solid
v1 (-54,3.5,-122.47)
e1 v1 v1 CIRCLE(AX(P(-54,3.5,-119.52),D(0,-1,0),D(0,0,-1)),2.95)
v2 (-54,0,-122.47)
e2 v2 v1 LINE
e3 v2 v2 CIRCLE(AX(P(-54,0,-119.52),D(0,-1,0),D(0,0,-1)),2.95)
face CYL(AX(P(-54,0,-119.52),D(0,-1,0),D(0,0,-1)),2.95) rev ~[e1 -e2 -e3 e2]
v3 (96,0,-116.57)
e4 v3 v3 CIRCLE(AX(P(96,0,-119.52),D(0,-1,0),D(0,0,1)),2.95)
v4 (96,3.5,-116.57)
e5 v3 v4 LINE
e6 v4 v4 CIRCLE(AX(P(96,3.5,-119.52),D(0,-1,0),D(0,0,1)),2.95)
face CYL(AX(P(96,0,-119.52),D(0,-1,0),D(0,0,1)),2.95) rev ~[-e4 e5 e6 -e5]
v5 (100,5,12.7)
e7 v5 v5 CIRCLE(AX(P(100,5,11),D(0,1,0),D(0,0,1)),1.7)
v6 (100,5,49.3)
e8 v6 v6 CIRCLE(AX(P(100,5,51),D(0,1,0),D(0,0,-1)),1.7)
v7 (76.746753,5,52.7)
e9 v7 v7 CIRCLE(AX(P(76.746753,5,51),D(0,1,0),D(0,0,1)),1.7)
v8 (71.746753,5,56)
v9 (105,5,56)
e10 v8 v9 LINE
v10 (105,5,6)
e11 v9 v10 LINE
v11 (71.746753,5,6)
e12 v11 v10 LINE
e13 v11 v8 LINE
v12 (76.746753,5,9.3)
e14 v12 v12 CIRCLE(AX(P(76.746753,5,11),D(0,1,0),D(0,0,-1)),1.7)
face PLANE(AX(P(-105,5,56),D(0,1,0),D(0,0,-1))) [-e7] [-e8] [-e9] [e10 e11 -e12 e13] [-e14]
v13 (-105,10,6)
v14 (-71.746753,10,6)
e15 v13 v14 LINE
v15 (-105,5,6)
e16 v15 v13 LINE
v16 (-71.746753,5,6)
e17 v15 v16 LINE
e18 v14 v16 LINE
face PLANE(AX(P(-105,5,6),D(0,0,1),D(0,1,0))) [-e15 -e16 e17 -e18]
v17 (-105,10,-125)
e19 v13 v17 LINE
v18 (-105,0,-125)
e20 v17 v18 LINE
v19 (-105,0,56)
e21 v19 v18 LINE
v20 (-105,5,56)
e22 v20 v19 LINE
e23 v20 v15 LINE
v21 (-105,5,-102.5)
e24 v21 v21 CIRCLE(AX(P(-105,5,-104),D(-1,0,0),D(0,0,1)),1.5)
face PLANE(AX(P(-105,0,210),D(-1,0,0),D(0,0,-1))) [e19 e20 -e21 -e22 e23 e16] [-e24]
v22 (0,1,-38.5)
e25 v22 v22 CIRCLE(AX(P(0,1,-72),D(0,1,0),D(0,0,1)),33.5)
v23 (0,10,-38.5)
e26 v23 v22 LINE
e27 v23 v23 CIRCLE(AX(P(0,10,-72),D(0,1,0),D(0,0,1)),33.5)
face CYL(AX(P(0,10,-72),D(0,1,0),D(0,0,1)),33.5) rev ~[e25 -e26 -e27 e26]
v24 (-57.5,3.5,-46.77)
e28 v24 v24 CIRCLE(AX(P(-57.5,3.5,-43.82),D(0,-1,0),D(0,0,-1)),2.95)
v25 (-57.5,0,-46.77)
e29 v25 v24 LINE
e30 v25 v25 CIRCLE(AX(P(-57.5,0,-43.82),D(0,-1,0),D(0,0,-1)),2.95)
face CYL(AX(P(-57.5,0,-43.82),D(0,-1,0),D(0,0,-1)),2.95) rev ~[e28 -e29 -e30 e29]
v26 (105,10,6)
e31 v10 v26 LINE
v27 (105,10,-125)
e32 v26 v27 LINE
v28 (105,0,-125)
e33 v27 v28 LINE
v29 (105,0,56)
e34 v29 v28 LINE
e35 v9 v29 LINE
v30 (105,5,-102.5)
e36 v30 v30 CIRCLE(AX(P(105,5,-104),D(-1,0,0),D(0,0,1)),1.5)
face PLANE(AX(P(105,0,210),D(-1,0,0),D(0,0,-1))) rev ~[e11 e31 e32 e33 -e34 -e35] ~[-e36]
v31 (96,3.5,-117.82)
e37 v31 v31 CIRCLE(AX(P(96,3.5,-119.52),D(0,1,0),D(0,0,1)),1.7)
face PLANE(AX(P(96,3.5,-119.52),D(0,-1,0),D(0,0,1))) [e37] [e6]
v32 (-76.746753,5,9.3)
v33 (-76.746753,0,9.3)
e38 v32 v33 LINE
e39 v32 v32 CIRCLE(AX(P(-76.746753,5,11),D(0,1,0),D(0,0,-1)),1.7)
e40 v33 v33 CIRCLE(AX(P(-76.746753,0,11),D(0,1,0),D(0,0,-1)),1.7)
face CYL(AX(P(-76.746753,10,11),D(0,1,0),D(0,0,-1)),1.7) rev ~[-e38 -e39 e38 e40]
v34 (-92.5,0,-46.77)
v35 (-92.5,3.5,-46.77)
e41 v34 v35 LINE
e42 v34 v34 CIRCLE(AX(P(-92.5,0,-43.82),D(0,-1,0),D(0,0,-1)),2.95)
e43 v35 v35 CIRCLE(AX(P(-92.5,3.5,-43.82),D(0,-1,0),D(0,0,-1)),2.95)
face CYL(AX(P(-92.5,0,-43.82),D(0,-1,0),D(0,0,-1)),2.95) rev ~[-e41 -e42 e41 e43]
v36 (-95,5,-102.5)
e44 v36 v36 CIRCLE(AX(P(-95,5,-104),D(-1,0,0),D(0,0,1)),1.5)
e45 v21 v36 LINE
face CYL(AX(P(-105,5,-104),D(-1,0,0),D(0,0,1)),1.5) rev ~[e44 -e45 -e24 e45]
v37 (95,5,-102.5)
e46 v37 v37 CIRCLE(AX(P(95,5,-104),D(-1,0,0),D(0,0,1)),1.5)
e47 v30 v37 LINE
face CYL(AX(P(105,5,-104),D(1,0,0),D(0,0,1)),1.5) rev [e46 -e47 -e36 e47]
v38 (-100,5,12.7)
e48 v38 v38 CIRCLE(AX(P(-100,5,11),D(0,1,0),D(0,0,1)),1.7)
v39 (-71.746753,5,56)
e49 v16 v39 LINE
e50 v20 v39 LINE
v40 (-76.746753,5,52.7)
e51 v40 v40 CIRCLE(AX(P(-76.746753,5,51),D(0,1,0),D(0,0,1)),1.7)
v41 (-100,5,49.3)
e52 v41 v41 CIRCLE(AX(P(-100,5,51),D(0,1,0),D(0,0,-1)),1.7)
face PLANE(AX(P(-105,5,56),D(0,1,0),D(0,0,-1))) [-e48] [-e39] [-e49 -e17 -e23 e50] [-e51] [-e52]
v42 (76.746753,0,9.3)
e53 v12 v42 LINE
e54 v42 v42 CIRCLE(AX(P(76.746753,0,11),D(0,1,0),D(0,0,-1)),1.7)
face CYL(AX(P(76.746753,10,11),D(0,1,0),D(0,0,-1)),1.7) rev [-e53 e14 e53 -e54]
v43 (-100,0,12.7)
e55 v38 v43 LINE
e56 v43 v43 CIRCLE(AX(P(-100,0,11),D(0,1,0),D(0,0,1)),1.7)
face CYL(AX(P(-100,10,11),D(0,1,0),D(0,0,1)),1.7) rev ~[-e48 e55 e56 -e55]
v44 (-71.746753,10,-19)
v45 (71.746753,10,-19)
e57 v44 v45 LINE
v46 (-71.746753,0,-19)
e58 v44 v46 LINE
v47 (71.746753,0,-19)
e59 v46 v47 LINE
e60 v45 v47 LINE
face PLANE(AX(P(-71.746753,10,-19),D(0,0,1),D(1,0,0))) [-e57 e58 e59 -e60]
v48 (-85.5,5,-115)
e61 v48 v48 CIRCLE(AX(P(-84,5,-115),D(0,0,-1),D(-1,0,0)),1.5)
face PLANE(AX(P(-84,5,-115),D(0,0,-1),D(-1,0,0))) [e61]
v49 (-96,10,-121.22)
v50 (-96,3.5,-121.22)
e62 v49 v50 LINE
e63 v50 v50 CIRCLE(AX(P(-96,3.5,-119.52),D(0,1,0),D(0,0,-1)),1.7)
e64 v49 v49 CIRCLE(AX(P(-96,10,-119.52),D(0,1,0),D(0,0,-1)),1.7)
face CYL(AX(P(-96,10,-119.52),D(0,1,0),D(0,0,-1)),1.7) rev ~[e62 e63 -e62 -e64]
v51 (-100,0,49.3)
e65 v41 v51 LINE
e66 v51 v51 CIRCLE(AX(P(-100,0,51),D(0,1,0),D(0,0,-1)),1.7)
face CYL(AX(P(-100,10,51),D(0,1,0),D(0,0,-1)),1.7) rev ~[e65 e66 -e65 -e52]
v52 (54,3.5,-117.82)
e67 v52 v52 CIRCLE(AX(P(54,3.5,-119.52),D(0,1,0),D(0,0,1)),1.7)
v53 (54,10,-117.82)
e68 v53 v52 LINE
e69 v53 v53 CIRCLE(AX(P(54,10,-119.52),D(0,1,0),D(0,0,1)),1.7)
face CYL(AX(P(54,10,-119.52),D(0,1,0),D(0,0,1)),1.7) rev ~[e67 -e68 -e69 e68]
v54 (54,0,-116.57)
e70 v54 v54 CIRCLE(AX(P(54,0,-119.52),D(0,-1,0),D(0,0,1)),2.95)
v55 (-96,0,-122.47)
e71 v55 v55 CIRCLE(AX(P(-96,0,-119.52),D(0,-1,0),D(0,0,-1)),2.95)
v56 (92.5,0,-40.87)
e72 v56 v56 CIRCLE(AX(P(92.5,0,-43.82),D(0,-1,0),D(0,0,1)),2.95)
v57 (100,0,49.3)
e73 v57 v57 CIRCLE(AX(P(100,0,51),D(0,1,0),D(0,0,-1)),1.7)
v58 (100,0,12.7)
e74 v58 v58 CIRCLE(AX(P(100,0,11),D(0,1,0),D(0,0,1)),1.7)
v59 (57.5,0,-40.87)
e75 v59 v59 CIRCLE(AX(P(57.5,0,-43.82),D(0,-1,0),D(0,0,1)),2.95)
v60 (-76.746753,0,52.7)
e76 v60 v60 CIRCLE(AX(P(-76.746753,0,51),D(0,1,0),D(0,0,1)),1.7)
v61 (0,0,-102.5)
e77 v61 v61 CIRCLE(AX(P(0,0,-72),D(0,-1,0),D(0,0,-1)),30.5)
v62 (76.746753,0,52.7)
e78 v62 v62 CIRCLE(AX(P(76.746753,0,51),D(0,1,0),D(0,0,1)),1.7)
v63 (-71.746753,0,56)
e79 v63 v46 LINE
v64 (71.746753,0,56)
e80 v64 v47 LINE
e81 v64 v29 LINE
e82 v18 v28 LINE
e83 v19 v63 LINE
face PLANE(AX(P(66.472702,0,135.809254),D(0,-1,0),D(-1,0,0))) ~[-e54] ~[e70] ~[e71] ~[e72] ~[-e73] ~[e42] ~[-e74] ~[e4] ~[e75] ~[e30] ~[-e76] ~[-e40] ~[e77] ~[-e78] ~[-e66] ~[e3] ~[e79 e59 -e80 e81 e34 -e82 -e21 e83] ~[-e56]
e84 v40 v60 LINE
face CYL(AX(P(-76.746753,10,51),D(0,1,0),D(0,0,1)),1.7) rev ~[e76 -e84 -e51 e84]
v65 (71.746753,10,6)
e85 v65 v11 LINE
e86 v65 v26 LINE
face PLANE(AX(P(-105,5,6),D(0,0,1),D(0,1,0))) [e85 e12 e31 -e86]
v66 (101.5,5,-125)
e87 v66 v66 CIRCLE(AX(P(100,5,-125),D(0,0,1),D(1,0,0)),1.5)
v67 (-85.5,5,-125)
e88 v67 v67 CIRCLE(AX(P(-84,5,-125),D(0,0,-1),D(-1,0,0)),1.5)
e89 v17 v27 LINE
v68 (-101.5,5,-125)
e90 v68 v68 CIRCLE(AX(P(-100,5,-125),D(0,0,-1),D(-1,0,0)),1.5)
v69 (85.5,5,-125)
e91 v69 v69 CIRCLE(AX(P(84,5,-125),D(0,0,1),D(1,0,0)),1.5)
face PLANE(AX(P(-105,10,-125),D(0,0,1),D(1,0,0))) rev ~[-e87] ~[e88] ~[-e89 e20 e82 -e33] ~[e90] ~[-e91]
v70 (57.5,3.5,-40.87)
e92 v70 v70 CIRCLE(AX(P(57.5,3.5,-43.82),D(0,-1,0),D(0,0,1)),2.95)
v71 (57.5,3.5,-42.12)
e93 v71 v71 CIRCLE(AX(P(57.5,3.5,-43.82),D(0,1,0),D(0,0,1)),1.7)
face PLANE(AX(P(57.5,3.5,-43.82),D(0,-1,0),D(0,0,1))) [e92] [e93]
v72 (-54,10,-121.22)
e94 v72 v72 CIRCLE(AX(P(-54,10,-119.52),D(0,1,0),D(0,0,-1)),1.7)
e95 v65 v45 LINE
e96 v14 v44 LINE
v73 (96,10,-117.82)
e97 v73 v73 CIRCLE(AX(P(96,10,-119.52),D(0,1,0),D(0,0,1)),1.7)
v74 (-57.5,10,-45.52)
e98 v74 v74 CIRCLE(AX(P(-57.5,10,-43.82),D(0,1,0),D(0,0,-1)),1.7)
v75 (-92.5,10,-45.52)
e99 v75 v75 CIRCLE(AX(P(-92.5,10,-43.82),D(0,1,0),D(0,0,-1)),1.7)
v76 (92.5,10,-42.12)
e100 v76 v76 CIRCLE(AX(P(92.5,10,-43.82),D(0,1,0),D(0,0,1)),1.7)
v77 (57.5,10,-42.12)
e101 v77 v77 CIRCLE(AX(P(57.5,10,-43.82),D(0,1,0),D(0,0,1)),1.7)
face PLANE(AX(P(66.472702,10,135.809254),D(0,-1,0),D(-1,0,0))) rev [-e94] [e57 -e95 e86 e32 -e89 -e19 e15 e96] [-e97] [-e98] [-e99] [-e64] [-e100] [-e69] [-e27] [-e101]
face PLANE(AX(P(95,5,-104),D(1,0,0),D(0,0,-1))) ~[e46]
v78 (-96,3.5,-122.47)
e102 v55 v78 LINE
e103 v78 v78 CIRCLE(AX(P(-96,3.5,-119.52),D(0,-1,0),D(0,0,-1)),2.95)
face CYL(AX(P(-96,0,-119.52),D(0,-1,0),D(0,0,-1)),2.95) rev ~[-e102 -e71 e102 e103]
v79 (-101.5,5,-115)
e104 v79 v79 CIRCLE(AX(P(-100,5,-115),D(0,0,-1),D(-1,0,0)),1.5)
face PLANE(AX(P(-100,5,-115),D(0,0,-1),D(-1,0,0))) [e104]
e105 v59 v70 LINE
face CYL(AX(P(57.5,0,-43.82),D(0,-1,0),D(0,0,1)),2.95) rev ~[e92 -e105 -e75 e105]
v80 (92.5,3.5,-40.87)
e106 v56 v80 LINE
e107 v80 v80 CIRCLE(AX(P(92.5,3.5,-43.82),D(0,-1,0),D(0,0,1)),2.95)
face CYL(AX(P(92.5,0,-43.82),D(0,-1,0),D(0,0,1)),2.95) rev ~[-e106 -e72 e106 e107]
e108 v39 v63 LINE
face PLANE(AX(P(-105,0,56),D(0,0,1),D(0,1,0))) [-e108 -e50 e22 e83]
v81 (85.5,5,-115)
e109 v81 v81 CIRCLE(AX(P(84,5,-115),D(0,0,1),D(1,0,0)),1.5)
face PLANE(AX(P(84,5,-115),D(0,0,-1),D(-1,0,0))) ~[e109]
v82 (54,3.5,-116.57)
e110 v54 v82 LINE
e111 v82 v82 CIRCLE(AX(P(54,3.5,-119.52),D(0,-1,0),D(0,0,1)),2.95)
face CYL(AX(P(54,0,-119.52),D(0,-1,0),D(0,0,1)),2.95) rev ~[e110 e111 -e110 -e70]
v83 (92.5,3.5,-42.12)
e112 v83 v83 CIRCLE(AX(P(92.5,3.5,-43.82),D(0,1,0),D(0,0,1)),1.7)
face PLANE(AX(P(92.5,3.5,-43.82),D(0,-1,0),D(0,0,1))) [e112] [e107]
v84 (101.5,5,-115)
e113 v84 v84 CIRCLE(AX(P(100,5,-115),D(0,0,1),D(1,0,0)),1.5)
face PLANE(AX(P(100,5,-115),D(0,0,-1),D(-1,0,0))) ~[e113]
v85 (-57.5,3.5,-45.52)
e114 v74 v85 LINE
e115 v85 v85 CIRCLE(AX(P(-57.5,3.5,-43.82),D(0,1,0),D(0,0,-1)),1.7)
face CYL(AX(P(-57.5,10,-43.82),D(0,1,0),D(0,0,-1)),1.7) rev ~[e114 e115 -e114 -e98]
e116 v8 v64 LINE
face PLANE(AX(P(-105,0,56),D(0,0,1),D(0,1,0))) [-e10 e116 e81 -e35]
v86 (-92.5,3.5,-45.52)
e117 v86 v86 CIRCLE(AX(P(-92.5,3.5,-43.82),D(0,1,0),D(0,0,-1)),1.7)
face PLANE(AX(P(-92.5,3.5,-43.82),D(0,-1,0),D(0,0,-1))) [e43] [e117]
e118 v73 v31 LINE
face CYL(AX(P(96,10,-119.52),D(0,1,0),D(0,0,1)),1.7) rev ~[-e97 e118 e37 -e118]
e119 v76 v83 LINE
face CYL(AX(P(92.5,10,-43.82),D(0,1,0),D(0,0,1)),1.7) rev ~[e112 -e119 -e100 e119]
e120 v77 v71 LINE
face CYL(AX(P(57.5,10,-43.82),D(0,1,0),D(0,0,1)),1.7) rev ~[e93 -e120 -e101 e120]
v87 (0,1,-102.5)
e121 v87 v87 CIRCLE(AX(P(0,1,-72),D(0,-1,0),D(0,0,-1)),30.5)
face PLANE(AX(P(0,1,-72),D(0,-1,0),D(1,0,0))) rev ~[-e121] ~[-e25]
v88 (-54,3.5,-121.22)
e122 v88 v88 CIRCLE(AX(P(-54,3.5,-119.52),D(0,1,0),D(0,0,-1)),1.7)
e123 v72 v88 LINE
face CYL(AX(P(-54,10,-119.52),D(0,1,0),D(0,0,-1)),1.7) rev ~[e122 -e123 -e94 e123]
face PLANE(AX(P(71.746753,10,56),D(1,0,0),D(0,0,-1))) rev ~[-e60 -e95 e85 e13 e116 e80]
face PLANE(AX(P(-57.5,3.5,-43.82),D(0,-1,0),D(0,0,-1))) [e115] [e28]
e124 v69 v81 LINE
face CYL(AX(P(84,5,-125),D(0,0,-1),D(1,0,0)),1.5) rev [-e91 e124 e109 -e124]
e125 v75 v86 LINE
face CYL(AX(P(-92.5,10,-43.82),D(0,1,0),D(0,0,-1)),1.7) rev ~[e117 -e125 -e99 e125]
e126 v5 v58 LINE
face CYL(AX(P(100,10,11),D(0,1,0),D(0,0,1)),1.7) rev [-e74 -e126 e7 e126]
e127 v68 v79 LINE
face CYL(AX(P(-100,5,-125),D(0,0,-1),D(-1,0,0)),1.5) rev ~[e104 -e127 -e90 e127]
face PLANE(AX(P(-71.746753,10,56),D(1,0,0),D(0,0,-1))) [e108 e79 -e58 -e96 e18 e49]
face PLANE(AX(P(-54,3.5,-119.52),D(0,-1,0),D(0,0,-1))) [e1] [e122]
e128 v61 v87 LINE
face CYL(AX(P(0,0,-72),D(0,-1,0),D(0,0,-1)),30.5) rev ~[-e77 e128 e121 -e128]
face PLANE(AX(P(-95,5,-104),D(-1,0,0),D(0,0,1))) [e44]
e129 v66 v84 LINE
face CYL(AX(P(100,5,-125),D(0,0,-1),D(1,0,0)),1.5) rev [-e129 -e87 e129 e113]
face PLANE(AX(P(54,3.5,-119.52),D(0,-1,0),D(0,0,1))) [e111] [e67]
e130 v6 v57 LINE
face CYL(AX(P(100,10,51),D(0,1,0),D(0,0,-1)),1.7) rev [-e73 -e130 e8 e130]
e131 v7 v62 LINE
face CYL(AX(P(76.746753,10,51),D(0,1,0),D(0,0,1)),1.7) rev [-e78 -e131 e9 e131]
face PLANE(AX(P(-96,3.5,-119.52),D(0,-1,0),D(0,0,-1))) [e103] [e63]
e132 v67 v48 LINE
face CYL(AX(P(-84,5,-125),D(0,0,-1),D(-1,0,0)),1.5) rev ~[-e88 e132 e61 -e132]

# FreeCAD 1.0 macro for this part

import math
import FreeCAD as App
import Part
import Sketcher
from FreeCAD import Vector
Q = App.Units.Quantity

doc = App.newDocument("Part")
params = doc.addObject("Spreadsheet::Sheet", "Params")
for row, (alias, value) in enumerate([
    ("sketch1_width", "210 mm"),
    ("sketch1_height", "420 mm"),
    ("pad1_length", "10 mm"),
    ("sketch2_width", "87 mm"),
    ("sketch2_width2", "210 mm"),
    ("sketch2_height", "154 mm"),
    ("sketch2_height2", "85 mm"),
    ("pocket1_length", "10 mm"),
    ("sketch3_diameter", "3.4 mm"),
    ("pocket3_length", "4 mm"),
    ("sketch5_width", "35 mm"),
    ("sketch5_height", "7 mm"),
    ("pocket4_length", "5 mm"),
    ("sketch6_height", "7 mm"),
    ("pocket5_length", "35 mm"),
    ("sketch7_diameter", "3.4 mm"),
    ("sketch8_height", "75 mm"),
    ("pad2_length", "10 mm"),
    ("sketch11_diameter", "3.4 mm"),
    ("sketch12_width", "5 mm"),
    ("sketch12_height", "50 mm"),
    ("sketch13_diameter", "67 mm"),
    ("sketch14_diameter", "61 mm"),
    ("pad3_length", "1 mm"),
    ("sketch15_diameter", "3 mm"),
    ("pocket12_length", "10 mm"),
    ("sketch16_diameter", "3 mm"),
    ("pocket13_length", "10 mm"),
    ("sketch17_diameter", "5.9 mm"),
    ("pocket14_length", "3.5 mm"),
], start=1):
    params.set(f"A{row}", alias)
    params.set(f"B{row}", "=" + value)
    params.setAlias(f"B{row}", alias)

body = doc.addObject("PartDesign::Body", "Body")

# Sketch on XZ plane
sketch1 = body.newObject("Sketcher::SketchObject", "Sketch")
sketch1.AttachmentSupport = (doc.getObject("XZ_Plane"), [""])
sketch1.MapMode = "FlatFace"
sketch1.addGeometry([
    Part.LineSegment(Vector(-105, -210, 0), Vector(-105, 210, 0)),
    Part.LineSegment(Vector(-105, 210, 0), Vector(105, 210, 0)),
    Part.LineSegment(Vector(105, 210, 0), Vector(105, -210, 0)),
    Part.LineSegment(Vector(105, -210, 0), Vector(-105, -210, 0)),
], False)
sketch1.addConstraint([
    Sketcher.Constraint("Coincident", 0, 2, 1, 1),
    Sketcher.Constraint("Coincident", 1, 2, 2, 1),
    Sketcher.Constraint("Coincident", 2, 2, 3, 1),
    Sketcher.Constraint("Coincident", 3, 2, 0, 1),
    Sketcher.Constraint("Vertical", 0),
    Sketcher.Constraint("Horizontal", 1),
    Sketcher.Constraint("Vertical", 2),
    Sketcher.Constraint("Horizontal", 3),
    Sketcher.Constraint("Symmetric", 0, 2, 2, 2, -1, 1),
    Sketcher.Constraint("DistanceX", 1, 1, 1, 2, Q("210 mm")),
    Sketcher.Constraint("DistanceY", 0, 1, 0, 2, Q("420 mm")),
])
sketch1.setExpression("Constraints[9]", "Params.sketch1_width")
sketch1.setExpression("Constraints[10]", "Params.sketch1_height")
pad1 = body.newObject("PartDesign::Pad", "Pad")
pad1.Profile = sketch1
pad1.setExpression("Length", "Params.pad1_length")
pad1.Reversed = True

# Sketch on XZ plane
sketch2 = body.newObject("Sketcher::SketchObject", "Sketch001")
sketch2.AttachmentSupport = (doc.getObject("XZ_Plane"), [""])
sketch2.MapMode = "FlatFace"
sketch2.AttachmentOffset = App.Placement(Vector(0, 0, -10), App.Rotation())
sketch2.addGeometry([
    Part.LineSegment(Vector(18, 210, 0), Vector(105, 210, 0)),  # 0
    Part.LineSegment(Vector(105, 210, 0), Vector(105, 56, 0)),  # 1
    Part.LineSegment(Vector(105, 56, 0), Vector(18, 210, 0)),  # 2
    Part.LineSegment(Vector(-18, 210, 0), Vector(-105, 56, 0)),  # 3
    Part.LineSegment(Vector(-105, 56, 0), Vector(-105, 210, 0)),  # 4
    Part.LineSegment(Vector(-105, 210, 0), Vector(-18, 210, 0)),  # 5
    Part.LineSegment(Vector(-105, -210, 0), Vector(-105, -125, 0)),  # 6
    Part.LineSegment(Vector(-105, -125, 0), Vector(105, -125, 0)),  # 7
    Part.LineSegment(Vector(105, -125, 0), Vector(105, -210, 0)),  # 8
    Part.LineSegment(Vector(105, -210, 0), Vector(-105, -210, 0)),  # 9
    Part.LineSegment(Vector(72, 56, 0), Vector(-72, 56, 0)),  # 10
    Part.LineSegment(Vector(-72, 56, 0), Vector(-3, 178, 0)),  # 11
    Part.LineSegment(Vector(-3, 178, 0), Vector(3, 178, 0)),  # 12
    Part.LineSegment(Vector(3, 178, 0), Vector(72, 56, 0)),  # 13
], False)
sketch2.addConstraint([
    Sketcher.Constraint("Coincident", 0, 2, 1, 1),
    Sketcher.Constraint("Coincident", 1, 2, 2, 1),
    Sketcher.Constraint("Coincident", 2, 2, 0, 1),
    Sketcher.Constraint("Coincident", 3, 2, 4, 1),
    Sketcher.Constraint("Coincident", 4, 2, 5, 1),
    Sketcher.Constraint("Coincident", 5, 2, 3, 1),
    Sketcher.Constraint("Coincident", 6, 2, 7, 1),
    Sketcher.Constraint("Coincident", 7, 2, 8, 1),
    Sketcher.Constraint("Coincident", 8, 2, 9, 1),
    Sketcher.Constraint("Coincident", 9, 2, 6, 1),
    Sketcher.Constraint("Coincident", 10, 2, 11, 1),
    Sketcher.Constraint("Coincident", 11, 2, 12, 1),
    Sketcher.Constraint("Coincident", 12, 2, 13, 1),
    Sketcher.Constraint("Coincident", 13, 2, 10, 1),
    Sketcher.Constraint("Horizontal", 0),
    Sketcher.Constraint("Vertical", 1),
    Sketcher.Constraint("Vertical", 4),
    Sketcher.Constraint("Horizontal", 5),
    Sketcher.Constraint("Vertical", 6),
    Sketcher.Constraint("Horizontal", 7),
    Sketcher.Constraint("Vertical", 8),
    Sketcher.Constraint("Horizontal", 9),
    Sketcher.Constraint("Horizontal", 10),
    Sketcher.Constraint("Horizontal", 12),
    Sketcher.Constraint("Symmetric", 4, 2, 8, 2, -1, 1),
    Sketcher.Constraint("Symmetric", 0, 2, 9, 2, -1, 1),
    Sketcher.Constraint("Symmetric", 1, 2, 3, 2, -2),
    Sketcher.Constraint("Parallel", 3, 11),
    Sketcher.Constraint("Parallel", 2, 13),
    Sketcher.Constraint("Horizontal", 3, 2, 10, 2),
    Sketcher.Constraint("Equal", 0, 5),
    Sketcher.Constraint("DistanceX", 0, 1, 0, 2, Q("87 mm")),
    Sketcher.Constraint("DistanceX", 7, 1, 7, 2, Q("210 mm")),
    Sketcher.Constraint("DistanceY", 1, 2, 1, 1, Q("154 mm")),
    Sketcher.Constraint("DistanceY", 6, 1, 6, 2, Q("85 mm")),
    Sketcher.Constraint("DistanceY", -1, 1, 0, 2, Q("210 mm")),
    Sketcher.Constraint("DistanceY", -1, 1, 11, 2, Q("178 mm")),
    Sketcher.Constraint("DistanceX", 12, 1, 12, 2, Q("5.649351 mm")),
    Sketcher.Constraint("DistanceX", 10, 2, -1, 1, Q("71.746753 mm")),
])
sketch2.setExpression("Constraints[31]", "Params.sketch2_width")
sketch2.setExpression("Constraints[32]", "Params.sketch2_width2")
sketch2.setExpression("Constraints[33]", "Params.sketch2_height")
sketch2.setExpression("Constraints[34]", "Params.sketch2_height2")
pocket1 = body.newObject("PartDesign::Pocket", "Pocket")
pocket1.Profile = sketch2
pocket1.setExpression("Length", "Params.pocket1_length")
pocket1.Reversed = True

# Sketch on XZ plane
sketch3 = body.newObject("Sketcher::SketchObject", "Sketch002")
sketch3.AttachmentSupport = (doc.getObject("XZ_Plane"), [""])
sketch3.MapMode = "FlatFace"
sketch3.AttachmentOffset = App.Placement(Vector(0, 0, -10), App.Rotation())
sketch3.addGeometry([
    Part.Circle(Vector(-11, 205, 0), Vector(0, 0, 1), 1.7),
    Part.Circle(Vector(-11, 188.2, 0), Vector(0, 0, 1), 1.7),
    Part.Circle(Vector(11, 205, 0), Vector(0, 0, 1), 1.7),
    Part.Circle(Vector(11, 188.2, 0), Vector(0, 0, 1), 1.7),
], False)
sketch3.addConstraint([
    Sketcher.Constraint("Equal", 0, 1),
    Sketcher.Constraint("Equal", 1, 2),
    Sketcher.Constraint("Equal", 2, 3),
    Sketcher.Constraint("Symmetric", 0, 3, 2, 3, -2),
    Sketcher.Constraint("Symmetric", 1, 3, 3, 3, -2),
    Sketcher.Constraint("Vertical", 0, 3, 1, 3),
    Sketcher.Constraint("Diameter", 0, Q("3.4 mm")),
    Sketcher.Constraint("DistanceX", 0, 3, -1, 1, Q("11 mm")),
    Sketcher.Constraint("DistanceY", -1, 1, 0, 3, Q("205 mm")),
    Sketcher.Constraint("DistanceY", -1, 1, 1, 3, Q("188.18 mm")),
])
sketch3.setExpression("Constraints[6]", "Params.sketch3_diameter")
pocket2 = body.newObject("PartDesign::Pocket", "Pocket001")
pocket2.Profile = sketch3
pocket2.Type = "ThroughAll"
pocket2.Reversed = True

# Sketch on XZ plane
sketch4 = body.newObject("Sketcher::SketchObject", "Sketch003")
sketch4.AttachmentSupport = (doc.getObject("XZ_Plane"), [""])
sketch4.MapMode = "FlatFace"
sketch4.addGeometry([
    Part.LineSegment(Vector(-8.1, 206.7, 0), Vector(-11, 208.4, 0)),  # 0
    Part.LineSegment(Vector(-11, 208.4, 0), Vector(-13.9, 206.7, 0)),  # 1
    Part.LineSegment(Vector(-13.9, 206.7, 0), Vector(-13.9, 203.3, 0)),  # 2
    Part.LineSegment(Vector(-13.9, 203.3, 0), Vector(-11, 201.6, 0)),  # 3
    Part.LineSegment(Vector(-11, 201.6, 0), Vector(-8.1, 203.3, 0)),  # 4
    Part.LineSegment(Vector(-8.1, 203.3, 0), Vector(-8.1, 206.7, 0)),  # 5
    Part.LineSegment(Vector(11, 208.4, 0), Vector(8.1, 206.7, 0)),  # 6
    Part.LineSegment(Vector(8.1, 206.7, 0), Vector(8.1, 203.3, 0)),  # 7
    Part.LineSegment(Vector(8.1, 203.3, 0), Vector(11, 201.6, 0)),  # 8
    Part.LineSegment(Vector(11, 201.6, 0), Vector(13.9, 203.3, 0)),  # 9
    Part.LineSegment(Vector(13.9, 203.3, 0), Vector(13.9, 206.7, 0)),  # 10
    Part.LineSegment(Vector(13.9, 206.7, 0), Vector(11, 208.4, 0)),  # 11
    Part.LineSegment(Vector(-8.1, 186.5, 0), Vector(-8.1, 189.9, 0)),  # 12
    Part.LineSegment(Vector(-8.1, 189.9, 0), Vector(-11, 191.6, 0)),  # 13
    Part.LineSegment(Vector(-11, 191.6, 0), Vector(-13.9, 189.9, 0)),  # 14
    Part.LineSegment(Vector(-13.9, 189.9, 0), Vector(-13.9, 186.5, 0)),  # 15
    Part.LineSegment(Vector(-13.9, 186.5, 0), Vector(-11, 184.8, 0)),  # 16
    Part.LineSegment(Vector(-11, 184.8, 0), Vector(-8.1, 186.5, 0)),  # 17
    Part.LineSegment(Vector(8.1, 189.9, 0), Vector(8.1, 186.5, 0)),  # 18
    Part.LineSegment(Vector(8.1, 186.5, 0), Vector(11, 184.8, 0)),  # 19
    Part.LineSegment(Vector(11, 184.8, 0), Vector(13.9, 186.5, 0)),  # 20
    Part.LineSegment(Vector(13.9, 186.5, 0), Vector(13.9, 189.9, 0)),  # 21
    Part.LineSegment(Vector(13.9, 189.9, 0), Vector(11, 191.6, 0)),  # 22
    Part.LineSegment(Vector(11, 191.6, 0), Vector(8.1, 189.9, 0)),  # 23
], False)
sketch4.addConstraint([
    Sketcher.Constraint("Coincident", 0, 2, 1, 1),
    Sketcher.Constraint("Coincident", 1, 2, 2, 1),
    Sketcher.Constraint("Coincident", 2, 2, 3, 1),
    Sketcher.Constraint("Coincident", 3, 2, 4, 1),
    Sketcher.Constraint("Coincident", 4, 2, 5, 1),
    Sketcher.Constraint("Coincident", 5, 2, 0, 1),
    Sketcher.Constraint("Coincident", 6, 2, 7, 1),
    Sketcher.Constraint("Coincident", 7, 2, 8, 1),
    Sketcher.Constraint("Coincident", 8, 2, 9, 1),
    Sketcher.Constraint("Coincident", 9, 2, 10, 1),
    Sketcher.Constraint("Coincident", 10, 2, 11, 1),
    Sketcher.Constraint("Coincident", 11, 2, 6, 1),
    Sketcher.Constraint("Coincident", 12, 2, 13, 1),
    Sketcher.Constraint("Coincident", 13, 2, 14, 1),
    Sketcher.Constraint("Coincident", 14, 2, 15, 1),
    Sketcher.Constraint("Coincident", 15, 2, 16, 1),
    Sketcher.Constraint("Coincident", 16, 2, 17, 1),
    Sketcher.Constraint("Coincident", 17, 2, 12, 1),
    Sketcher.Constraint("Coincident", 18, 2, 19, 1),
    Sketcher.Constraint("Coincident", 19, 2, 20, 1),
    Sketcher.Constraint("Coincident", 20, 2, 21, 1),
    Sketcher.Constraint("Coincident", 21, 2, 22, 1),
    Sketcher.Constraint("Coincident", 22, 2, 23, 1),
    Sketcher.Constraint("Coincident", 23, 2, 18, 1),
    Sketcher.Constraint("Vertical", 2),
    Sketcher.Constraint("Vertical", 5),
    Sketcher.Constraint("Vertical", 7),
    Sketcher.Constraint("Vertical", 10),
    Sketcher.Constraint("Vertical", 12),
    Sketcher.Constraint("Vertical", 15),
    Sketcher.Constraint("Vertical", 18),
    Sketcher.Constraint("Vertical", 21),
    Sketcher.Constraint("Symmetric", 5, 2, 6, 2, -2),
    Sketcher.Constraint("Symmetric", 3, 2, 8, 2, -2),
    Sketcher.Constraint("Symmetric", 2, 2, 9, 2, -2),
    Sketcher.Constraint("Symmetric", 0, 2, 11, 2, -2),
    Sketcher.Constraint("Symmetric", 17, 2, 18, 2, -2),
    Sketcher.Constraint("Symmetric", 16, 2, 19, 2, -2),
    Sketcher.Constraint("Symmetric", 15, 2, 20, 2, -2),
    Sketcher.Constraint("Symmetric", 13, 2, 22, 2, -2),
    Sketcher.Constraint("Parallel", 0, 3),
    Sketcher.Constraint("Parallel", 1, 4),
    Sketcher.Constraint("Parallel", 4, 6),
    Sketcher.Constraint("Parallel", 3, 8),
    Sketcher.Constraint("Parallel", 8, 11),
    Sketcher.Constraint("Parallel", 11, 13),
    Sketcher.Constraint("Parallel", 9, 14),
    Sketcher.Constraint("Parallel", 13, 16),
    Sketcher.Constraint("Parallel", 14, 17),
    Sketcher.Constraint("Parallel", 19, 22),
    Sketcher.Constraint("Parallel", 20, 23),
    Sketcher.Constraint("Horizontal", 2, 2, 4, 2),
    Sketcher.Constraint("Horizontal", 1, 2, 5, 2),
    Sketcher.Constraint("Horizontal", 12, 2, 14, 2),
    Sketcher.Constraint("Horizontal", 15, 2, 17, 2),
    Sketcher.Constraint("Vertical", 5, 2, 12, 2),
    Sketcher.Constraint("Vertical", 3, 2, 13, 2),
    Sketcher.Constraint("Equal", 10, 12),
    Sketcher.Constraint("Angle", 0, Q("150 deg")),
    Sketcher.Constraint("DistanceX", 0, 2, -1, 1, Q("11 mm")),
    Sketcher.Constraint("DistanceX", 2, 2, 4, 2, Q("5.9 mm")),
    Sketcher.Constraint("DistanceY", 12, 2, 5, 2, Q("16.82 mm")),
    Sketcher.Constraint("DistanceY", 2, 2, 2, 1, Q("3.406367 mm")),
    Sketcher.Constraint("DistanceY", -1, 1, 0, 2, Q("208.406367 mm")),
])
pocket3 = body.newObject("PartDesign::Pocket", "Pocket002")
pocket3.Profile = sketch4
pocket3.setExpression("Length", "Params.pocket3_length")

# Sketch on XZ plane
sketch5 = body.newObject("Sketcher::SketchObject", "Sketch004")
sketch5.AttachmentSupport = (doc.getObject("XZ_Plane"), [""])
sketch5.MapMode = "FlatFace"
sketch5.addGeometry([
    Part.LineSegment(Vector(-18, 200, 0), Vector(-18, 193, 0)),
    Part.LineSegment(Vector(-18, 193, 0), Vector(18, 193, 0)),
    Part.LineSegment(Vector(18, 193, 0), Vector(18, 200, 0)),
    Part.LineSegment(Vector(18, 200, 0), Vector(-18, 200, 0)),
], False)
sketch5.addConstraint([
    Sketcher.Constraint("Coincident", 0, 2, 1, 1),
    Sketcher.Constraint("Coincident", 1, 2, 2, 1),
    Sketcher.Constraint("Coincident", 2, 2, 3, 1),
    Sketcher.Constraint("Coincident", 3, 2, 0, 1),
    Sketcher.Constraint("Vertical", 0),
    Sketcher.Constraint("Horizontal", 1),
    Sketcher.Constraint("Vertical", 2),
    Sketcher.Constraint("Horizontal", 3),
    Sketcher.Constraint("DistanceX", 1, 1, 1, 2, Q("35 mm")),
    Sketcher.Constraint("DistanceY", 0, 2, 0, 1, Q("7 mm")),
    Sketcher.Constraint("DistanceX", 0, 2, -1, 1, Q("17.5 mm")),
    Sketcher.Constraint("DistanceY", -1, 1, 0, 2, Q("193.09 mm")),
])
sketch5.setExpression("Constraints[8]", "Params.sketch5_width")
sketch5.setExpression("Constraints[9]", "Params.sketch5_height")
pocket4 = body.newObject("PartDesign::Pocket", "Pocket003")
pocket4.Profile = sketch5
pocket4.setExpression("Length", "Params.pocket4_length")

# Sketch on YZ plane
sketch6 = body.newObject("Sketcher::SketchObject", "Sketch005")
sketch6.AttachmentSupport = (doc.getObject("YZ_Plane"), [""])
sketch6.MapMode = "FlatFace"
sketch6.AttachmentOffset = App.Placement(Vector(0, 0, 17.5), App.Rotation())
sketch6.addGeometry([
    Part.LineSegment(Vector(8.5, 196.6, 0), Vector(5, 193.1, 0)),
    Part.LineSegment(Vector(5, 193.1, 0), Vector(5, 200.1, 0)),
    Part.LineSegment(Vector(5, 200.1, 0), Vector(8.5, 196.6, 0)),
], False)
sketch6.addConstraint([
    Sketcher.Constraint("Coincident", 0, 2, 1, 1),
    Sketcher.Constraint("Coincident", 1, 2, 2, 1),
    Sketcher.Constraint("Coincident", 2, 2, 0, 1),
    Sketcher.Constraint("Vertical", 1),
    Sketcher.Constraint("Perpendicular", 0, 2),
    Sketcher.Constraint("Equal", 0, 2),
    Sketcher.Constraint("DistanceY", 1, 1, 1, 2, Q("7 mm")),
    Sketcher.Constraint("DistanceX", -1, 1, 0, 2, Q("5 mm")),
    Sketcher.Constraint("DistanceY", -1, 1, 0, 2, Q("193.09 mm")),
])
sketch6.setExpression("Constraints[6]", "Params.sketch6_height")
pocket5 = body.newObject("PartDesign::Pocket", "Pocket004")
pocket5.Profile = sketch6
pocket5.setExpression("Length", "Params.pocket5_length")

# Sketch on XZ plane
sketch7 = body.newObject("Sketcher::SketchObject", "Sketch006")
sketch7.AttachmentSupport = (doc.getObject("XZ_Plane"), [""])
sketch7.MapMode = "FlatFace"
sketch7.AttachmentOffset = App.Placement(Vector(0, 0, -10), App.Rotation())
sketch7.addGeometry([
    Part.Circle(Vector(96, -119.5, 0), Vector(0, 0, 1), 1.7),  # 0
    Part.Circle(Vector(54, -119.5, 0), Vector(0, 0, 1), 1.7),  # 1
    Part.Circle(Vector(-54, -119.5, 0), Vector(0, 0, 1), 1.7),  # 2
    Part.Circle(Vector(-96, -119.5, 0), Vector(0, 0, 1), 1.7),  # 3
    Part.Circle(Vector(92.5, -43.8, 0), Vector(0, 0, 1), 1.7),  # 4
    Part.Circle(Vector(57.5, -43.8, 0), Vector(0, 0, 1), 1.7),  # 5
    Part.Circle(Vector(-92.5, -43.8, 0), Vector(0, 0, 1), 1.7),  # 6
    Part.Circle(Vector(-57.5, -43.8, 0), Vector(0, 0, 1), 1.7),  # 7
], False)
sketch7.addConstraint([
    Sketcher.Constraint("Equal", 0, 1),
    Sketcher.Constraint("Equal", 1, 2),
    Sketcher.Constraint("Equal", 2, 3),
    Sketcher.Constraint("Equal", 3, 4),
    Sketcher.Constraint("Equal", 4, 5),
    Sketcher.Constraint("Equal", 5, 6),
    Sketcher.Constraint("Equal", 6, 7),
    Sketcher.Constraint("Symmetric", 1, 3, 2, 3, -2),
    Sketcher.Constraint("Symmetric", 0, 3, 3, 3, -2),
    Sketcher.Constraint("Symmetric", 4, 3, 6, 3, -2),
    Sketcher.Constraint("Symmetric", 5, 3, 7, 3, -2),
    Sketcher.Constraint("Horizontal", 0, 3, 1, 3),
    Sketcher.Constraint("Horizontal", 4, 3, 5, 3),
    Sketcher.Constraint("Diameter", 0, Q("3.4 mm")),
    Sketcher.Constraint("DistanceX", -1, 1, 0, 3, Q("96 mm")),
    Sketcher.Constraint("DistanceX", -1, 1, 1, 3, Q("54 mm")),
    Sketcher.Constraint("DistanceX", 5, 3, 4, 3, Q("35 mm")),
    Sketcher.Constraint("DistanceX", 6, 3, 5, 3, Q("150 mm")),
    Sketcher.Constraint("DistanceY", 0, 3, 4, 3, Q("75.7 mm")),
    Sketcher.Constraint("DistanceY", 0, 3, -1, 1, Q("119.52 mm")),
])
sketch7.setExpression("Constraints[13]", "Params.sketch7_diameter")
pocket6 = body.newObject("PartDesign::Pocket", "Pocket005")
pocket6.Profile = sketch7
pocket6.Type = "ThroughAll"
pocket6.Reversed = True

# Sketch on XZ plane
sketch8 = body.newObject("Sketcher::SketchObject", "Sketch007")
sketch8.AttachmentSupport = (doc.getObject("XZ_Plane"), [""])
sketch8.MapMode = "FlatFace"
sketch8.AttachmentOffset = App.Placement(Vector(0, 0, -10), App.Rotation())
sketch8.addGeometry([
    Part.LineSegment(Vector(-72, -19, 0), Vector(-72, 56, 0)),
    Part.LineSegment(Vector(-72, 56, 0), Vector(72, 56, 0)),
    Part.LineSegment(Vector(72, 56, 0), Vector(72, -19, 0)),
    Part.LineSegment(Vector(72, -19, 0), Vector(-72, -19, 0)),
], False)
sketch8.addConstraint([
    Sketcher.Constraint("Coincident", 0, 2, 1, 1),
    Sketcher.Constraint("Coincident", 1, 2, 2, 1),
    Sketcher.Constraint("Coincident", 2, 2, 3, 1),
    Sketcher.Constraint("Coincident", 3, 2, 0, 1),
    Sketcher.Constraint("Vertical", 0),
    Sketcher.Constraint("Horizontal", 1),
    Sketcher.Constraint("Vertical", 2),
    Sketcher.Constraint("Horizontal", 3),
    Sketcher.Constraint("DistanceY", 0, 1, 0, 2, Q("75 mm")),
    Sketcher.Constraint("DistanceY", -1, 1, 0, 2, Q("56 mm")),
    Sketcher.Constraint("DistanceX", 1, 1, 1, 2, Q("143.493506 mm")),
    Sketcher.Constraint("DistanceX", 0, 2, -1, 1, Q("71.746753 mm")),
])
sketch8.setExpression("Constraints[8]", "Params.sketch8_height")
pocket7 = body.newObject("PartDesign::Pocket", "Pocket006")
pocket7.Profile = sketch8
pocket7.Type = "ThroughAll"
pocket7.Reversed = True

# Sketch on XZ plane
sketch9 = body.newObject("Sketcher::SketchObject", "Sketch008")
sketch9.AttachmentSupport = (doc.getObject("XZ_Plane"), [""])
sketch9.MapMode = "FlatFace"
sketch9.AttachmentOffset = App.Placement(Vector(0, 0, -10), App.Rotation())
sketch9.addGeometry([
    Part.LineSegment(Vector(-3, 178, 0), Vector(-72, 56, 0)),
    Part.ArcOfCircle(Part.Circle(Vector(56, 64, 0), Vector(0, 0, 1), 128), math.radians(117), math.radians(184)),
], False)
sketch9.addConstraint([
    Sketcher.Constraint("Coincident", 0, 1, 1, 1),
    Sketcher.Constraint("Coincident", 1, 2, 0, 2),
    Sketcher.Constraint("DistanceY", -1, 1, 0, 1, Q("178 mm")),
    Sketcher.Constraint("DistanceY", -1, 1, 1, 2, Q("56 mm")),
    Sketcher.Constraint("Radius", 1, Q("127.738656 mm")),
    Sketcher.Constraint("Distance", 0, Q("140.122278 mm")),
    Sketcher.Constraint("DistanceX", -1, 1, 1, 3, Q("55.711264 mm")),
])
pocket8 = body.newObject("PartDesign::Pocket", "Pocket007")
pocket8.Profile = sketch9
pocket8.Type = "ThroughAll"
pocket8.Reversed = True

# Sketch on XZ plane
sketch10 = body.newObject("Sketcher::SketchObject", "Sketch009")
sketch10.AttachmentSupport = (doc.getObject("XZ_Plane"), [""])
sketch10.MapMode = "FlatFace"
sketch10.AttachmentOffset = App.Placement(Vector(0, 0, -10), App.Rotation())
sketch10.addGeometry([
    Part.LineSegment(Vector(-18, 210, 0), Vector(-105, 56, 0)),
    Part.ArcOfCircle(Part.Circle(Vector(109, 37, 0), Vector(0, 0, 1), 215), math.radians(126), math.radians(175)),
], False)
sketch10.addConstraint([
    Sketcher.Constraint("Coincident", 0, 1, 1, 1),
    Sketcher.Constraint("Coincident", 1, 2, 0, 2),
    Sketcher.Constraint("DistanceX", 0, 1, -1, 1, Q("18 mm")),
    Sketcher.Constraint("DistanceY", -1, 1, 0, 1, Q("210 mm")),
    Sketcher.Constraint("DistanceX", 1, 2, -1, 1, Q("105 mm")),
    Sketcher.Constraint("DistanceY", -1, 1, 1, 2, Q("56 mm")),
    Sketcher.Constraint("Radius", 1, Q("214.782015 mm")),
])
pad2 = body.newObject("PartDesign::Pad", "Pad001")
pad2.Profile = sketch10
pad2.setExpression("Length", "Params.pad2_length")
doc.recompute()

mirrored = body.newObject("PartDesign::Mirrored", "Mirrored")
mirrored.Originals = [pocket8, pad2]
mirrored.MirrorPlane = (doc.getObject("YZ_Plane"), [""])
body.Tip = mirrored

# Sketch on XZ plane
sketch11 = body.newObject("Sketcher::SketchObject", "Sketch010")
sketch11.AttachmentSupport = (doc.getObject("XZ_Plane"), [""])
sketch11.MapMode = "FlatFace"
sketch11.AttachmentOffset = App.Placement(Vector(0, 0, -10), App.Rotation())
sketch11.addGeometry([
    Part.Circle(Vector(-100, 11, 0), Vector(0, 0, 1), 1.7),
    Part.Circle(Vector(-76.7, 11, 0), Vector(0, 0, 1), 1.7),
    Part.Circle(Vector(-76.7, 51, 0), Vector(0, 0, 1), 1.7),
    Part.Circle(Vector(-100, 51, 0), Vector(0, 0, 1), 1.7),
], False)
sketch11.addConstraint([
    Sketcher.Constraint("Equal", 0, 1),
    Sketcher.Constraint("Equal", 1, 2),
    Sketcher.Constraint("Equal", 2, 3),
    Sketcher.Constraint("Horizontal", 0, 3, 1, 3),
    Sketcher.Constraint("Horizontal", 2, 3, 3, 3),
    Sketcher.Constraint("Vertical", 1, 3, 2, 3),
    Sketcher.Constraint("Vertical", 0, 3, 3, 3),
    Sketcher.Constraint("Diameter", 0, Q("3.4 mm")),
    Sketcher.Constraint("DistanceX", 0, 3, -1, 1, Q("100 mm")),
    Sketcher.Constraint("DistanceY", -1, 1, 0, 3, Q("11 mm")),
    Sketcher.Constraint("DistanceY", -1, 1, 2, 3, Q("51 mm")),
    Sketcher.Constraint("DistanceX", 1, 3, -1, 1, Q("76.746753 mm")),
])
sketch11.setExpression("Constraints[7]", "Params.sketch11_diameter")
pocket9 = body.newObject("PartDesign::Pocket", "Pocket008")
pocket9.Profile = sketch11
pocket9.Type = "ThroughAll"
pocket9.Reversed = True
doc.recompute()

mirrored2 = body.newObject("PartDesign::Mirrored", "Mirrored001")
mirrored2.Originals = [pocket9]
mirrored2.MirrorPlane = (doc.getObject("YZ_Plane"), [""])
body.Tip = mirrored2

# Sketch on YZ plane
sketch12 = body.newObject("Sketcher::SketchObject", "Sketch011")
sketch12.AttachmentSupport = (doc.getObject("YZ_Plane"), [""])
sketch12.MapMode = "FlatFace"
sketch12.AttachmentOffset = App.Placement(Vector(0, 0, -105), App.Rotation())
sketch12.addGeometry([
    Part.LineSegment(Vector(13, 6, 0), Vector(5, 6, 0)),  # 0
    Part.LineSegment(Vector(5, 6, 0), Vector(5, 56, 0)),  # 1
    Part.LineSegment(Vector(5, 56, 0), Vector(0, 56, 0)),  # 2
    Part.LineSegment(Vector(0, 56, 0), Vector(-60, 91, 0)),  # 3
    Part.LineSegment(Vector(-60, 91, 0), Vector(-41, 243, 0)),  # 4
    Part.LineSegment(Vector(-41, 243, 0), Vector(83, 201, 0)),  # 5
    Part.LineSegment(Vector(83, 201, 0), Vector(13, 6, 0)),  # 6
], False)
sketch12.addConstraint([
    Sketcher.Constraint("Coincident", 0, 2, 1, 1),
    Sketcher.Constraint("Coincident", 1, 2, 2, 1),
    Sketcher.Constraint("Coincident", 2, 2, 3, 1),
    Sketcher.Constraint("Coincident", 3, 2, 4, 1),
    Sketcher.Constraint("Coincident", 4, 2, 5, 1),
    Sketcher.Constraint("Coincident", 5, 2, 6, 1),
    Sketcher.Constraint("Coincident", 6, 2, 0, 1),
    Sketcher.Constraint("Horizontal", 0),
    Sketcher.Constraint("Vertical", 1),
    Sketcher.Constraint("Horizontal", 2),
    Sketcher.Constraint("PointOnObject", 2, 2, -2),
    Sketcher.Constraint("DistanceX", 2, 2, 2, 1, Q("5 mm")),
    Sketcher.Constraint("DistanceY", 1, 1, 1, 2, Q("50 mm")),
    Sketcher.Constraint("DistanceY", -1, 1, 0, 2, Q("6 mm")),
    Sketcher.Constraint("Distance", 5, Q("130.626732 mm")),
    Sketcher.Constraint("Distance", 6, Q("206.699439 mm")),
    Sketcher.Constraint("DistanceX", 0, 2, 0, 1, Q("8.101487 mm")),
    Sketcher.Constraint("DistanceX", 4, 2, -1, 1, Q("41.037631 mm")),
    Sketcher.Constraint("DistanceX", 3, 2, 4, 2, Q("19.247151 mm")),
    Sketcher.Constraint("DistanceY", 3, 2, 4, 2, Q("151.755729 mm")),
    Sketcher.Constraint("DistanceX", 4, 2, 5, 2, Q("123.583909 mm")),
])
sketch12.setExpression("Constraints[11]", "Params.sketch12_width")
sketch12.setExpression("Constraints[12]", "Params.sketch12_height")
pocket10 = body.newObject("PartDesign::Pocket", "Pocket009")
pocket10.Profile = sketch12
pocket10.Type = "ThroughAll"
pocket10.Reversed = True

# Sketch on XZ plane
sketch13 = body.newObject("Sketcher::SketchObject", "Sketch012")
sketch13.AttachmentSupport = (doc.getObject("XZ_Plane"), [""])
sketch13.MapMode = "FlatFace"
sketch13.AttachmentOffset = App.Placement(Vector(0, 0, -10), App.Rotation())
sketch13.addGeometry(Part.Circle(Vector(0, -72, 0), Vector(0, 0, 1), 34), False)
sketch13.addConstraint([
    Sketcher.Constraint("PointOnObject", 0, 3, -2),
    Sketcher.Constraint("Diameter", 0, Q("67 mm")),
    Sketcher.Constraint("DistanceY", 0, 3, -1, 1, Q("72 mm")),
])
sketch13.setExpression("Constraints[1]", "Params.sketch13_diameter")
pocket11 = body.newObject("PartDesign::Pocket", "Pocket010")
pocket11.Profile = sketch13
pocket11.Type = "ThroughAll"
pocket11.Reversed = True

# Sketch on XZ plane
sketch14 = body.newObject("Sketcher::SketchObject", "Sketch013")
sketch14.AttachmentSupport = (doc.getObject("XZ_Plane"), [""])
sketch14.MapMode = "FlatFace"
sketch14.addGeometry([
    Part.Circle(Vector(0, -72, 0), Vector(0, 0, 1), 36),
    Part.Circle(Vector(0, -72, 0), Vector(0, 0, 1), 30),
], False)
sketch14.addConstraint([
    Sketcher.Constraint("Coincident", 1, 3, 0, 3),
    Sketcher.Constraint("PointOnObject", 0, 3, -2),
    Sketcher.Constraint("Diameter", 1, Q("61 mm")),
    Sketcher.Constraint("DistanceY", 0, 3, -1, 1, Q("72 mm")),
    Sketcher.Constraint("Diameter", 0, Q("72.012512 mm")),
])
sketch14.setExpression("Constraints[2]", "Params.sketch14_diameter")
pad3 = body.newObject("PartDesign::Pad", "Pad002")
pad3.Profile = sketch14
pad3.setExpression("Length", "Params.pad3_length")
pad3.Reversed = True

# Sketch on YZ plane
sketch15 = body.newObject("Sketcher::SketchObject", "Sketch014")
sketch15.AttachmentSupport = (doc.getObject("YZ_Plane"), [""])
sketch15.MapMode = "FlatFace"
sketch15.AttachmentOffset = App.Placement(Vector(0, 0, -105), App.Rotation())
sketch15.addGeometry(Part.Circle(Vector(5, -104, 0), Vector(0, 0, 1), 1.5), False)
sketch15.addConstraint([
    Sketcher.Constraint("Diameter", 0, Q("3 mm")),
    Sketcher.Constraint("DistanceX", -1, 1, 0, 3, Q("5 mm")),
    Sketcher.Constraint("DistanceY", 0, 3, -1, 1, Q("104 mm")),
])
sketch15.setExpression("Constraints[0]", "Params.sketch15_diameter")
pocket12 = body.newObject("PartDesign::Pocket", "Pocket011")
pocket12.Profile = sketch15
pocket12.setExpression("Length", "Params.pocket12_length")
pocket12.Reversed = True

# Sketch on XY plane
sketch16 = body.newObject("Sketcher::SketchObject", "Sketch015")
sketch16.AttachmentSupport = (doc.getObject("XY_Plane"), [""])
sketch16.MapMode = "FlatFace"
sketch16.AttachmentOffset = App.Placement(Vector(0, 0, -125), App.Rotation())
sketch16.addGeometry([
    Part.Circle(Vector(-100, 5, 0), Vector(0, 0, 1), 1.5),
    Part.Circle(Vector(-84, 5, 0), Vector(0, 0, 1), 1.5),
], False)
sketch16.addConstraint([
    Sketcher.Constraint("Equal", 0, 1),
    Sketcher.Constraint("Horizontal", 0, 3, 1, 3),
    Sketcher.Constraint("Diameter", 0, Q("3 mm")),
    Sketcher.Constraint("DistanceX", 0, 3, -1, 1, Q("100 mm")),
    Sketcher.Constraint("DistanceY", -1, 1, 0, 3, Q("5 mm")),
    Sketcher.Constraint("DistanceX", 1, 3, -1, 1, Q("84 mm")),
])
sketch16.setExpression("Constraints[2]", "Params.sketch16_diameter")
pocket13 = body.newObject("PartDesign::Pocket", "Pocket012")
pocket13.Profile = sketch16
pocket13.setExpression("Length", "Params.pocket13_length")
pocket13.Reversed = True
doc.recompute()

mirrored3 = body.newObject("PartDesign::Mirrored", "Mirrored002")
mirrored3.Originals = [pocket12, pocket13]
mirrored3.MirrorPlane = (doc.getObject("YZ_Plane"), [""])
body.Tip = mirrored3

# Sketch on XZ plane
sketch17 = body.newObject("Sketcher::SketchObject", "Sketch016")
sketch17.AttachmentSupport = (doc.getObject("XZ_Plane"), [""])
sketch17.MapMode = "FlatFace"
sketch17.addGeometry([
    Part.Circle(Vector(-96, -119.5, 0), Vector(0, 0, 1), 3),  # 0
    Part.Circle(Vector(-54, -119.5, 0), Vector(0, 0, 1), 3),  # 1
    Part.Circle(Vector(-92.5, -43.8, 0), Vector(0, 0, 1), 3),  # 2
    Part.Circle(Vector(-57.5, -43.8, 0), Vector(0, 0, 1), 3),  # 3
    Part.Circle(Vector(57.5, -43.8, 0), Vector(0, 0, 1), 3),  # 4
    Part.Circle(Vector(92.5, -43.8, 0), Vector(0, 0, 1), 3),  # 5
    Part.Circle(Vector(54, -119.5, 0), Vector(0, 0, 1), 3),  # 6
    Part.Circle(Vector(96, -119.5, 0), Vector(0, 0, 1), 3),  # 7
], False)
sketch17.addConstraint([
    Sketcher.Constraint("Equal", 0, 1),
    Sketcher.Constraint("Equal", 1, 2),
    Sketcher.Constraint("Equal", 2, 3),
    Sketcher.Constraint("Equal", 3, 4),
    Sketcher.Constraint("Equal", 4, 5),
    Sketcher.Constraint("Equal", 5, 6),
    Sketcher.Constraint("Equal", 6, 7),
    Sketcher.Constraint("Symmetric", 3, 3, 4, 3, -2),
    Sketcher.Constraint("Symmetric", 2, 3, 5, 3, -2),
    Sketcher.Constraint("Symmetric", 1, 3, 6, 3, -2),
    Sketcher.Constraint("Symmetric", 0, 3, 7, 3, -2),
    Sketcher.Constraint("Horizontal", 0, 3, 1, 3),
    Sketcher.Constraint("Horizontal", 2, 3, 3, 3),
    Sketcher.Constraint("Diameter", 0, Q("5.9 mm")),
    Sketcher.Constraint("DistanceX", 0, 3, -1, 1, Q("96 mm")),
    Sketcher.Constraint("DistanceX", 1, 3, -1, 1, Q("54 mm")),
    Sketcher.Constraint("DistanceX", 2, 3, 3, 3, Q("35 mm")),
    Sketcher.Constraint("DistanceX", 3, 3, 4, 3, Q("115 mm")),
    Sketcher.Constraint("DistanceY", 0, 3, 2, 3, Q("75.7 mm")),
    Sketcher.Constraint("DistanceY", 0, 3, -1, 1, Q("119.52 mm")),
])
sketch17.setExpression("Constraints[13]", "Params.sketch17_diameter")
pocket14 = body.newObject("PartDesign::Pocket", "Pocket013")
pocket14.Profile = sketch17
pocket14.setExpression("Length", "Params.pocket14_length")

doc.recompute()
